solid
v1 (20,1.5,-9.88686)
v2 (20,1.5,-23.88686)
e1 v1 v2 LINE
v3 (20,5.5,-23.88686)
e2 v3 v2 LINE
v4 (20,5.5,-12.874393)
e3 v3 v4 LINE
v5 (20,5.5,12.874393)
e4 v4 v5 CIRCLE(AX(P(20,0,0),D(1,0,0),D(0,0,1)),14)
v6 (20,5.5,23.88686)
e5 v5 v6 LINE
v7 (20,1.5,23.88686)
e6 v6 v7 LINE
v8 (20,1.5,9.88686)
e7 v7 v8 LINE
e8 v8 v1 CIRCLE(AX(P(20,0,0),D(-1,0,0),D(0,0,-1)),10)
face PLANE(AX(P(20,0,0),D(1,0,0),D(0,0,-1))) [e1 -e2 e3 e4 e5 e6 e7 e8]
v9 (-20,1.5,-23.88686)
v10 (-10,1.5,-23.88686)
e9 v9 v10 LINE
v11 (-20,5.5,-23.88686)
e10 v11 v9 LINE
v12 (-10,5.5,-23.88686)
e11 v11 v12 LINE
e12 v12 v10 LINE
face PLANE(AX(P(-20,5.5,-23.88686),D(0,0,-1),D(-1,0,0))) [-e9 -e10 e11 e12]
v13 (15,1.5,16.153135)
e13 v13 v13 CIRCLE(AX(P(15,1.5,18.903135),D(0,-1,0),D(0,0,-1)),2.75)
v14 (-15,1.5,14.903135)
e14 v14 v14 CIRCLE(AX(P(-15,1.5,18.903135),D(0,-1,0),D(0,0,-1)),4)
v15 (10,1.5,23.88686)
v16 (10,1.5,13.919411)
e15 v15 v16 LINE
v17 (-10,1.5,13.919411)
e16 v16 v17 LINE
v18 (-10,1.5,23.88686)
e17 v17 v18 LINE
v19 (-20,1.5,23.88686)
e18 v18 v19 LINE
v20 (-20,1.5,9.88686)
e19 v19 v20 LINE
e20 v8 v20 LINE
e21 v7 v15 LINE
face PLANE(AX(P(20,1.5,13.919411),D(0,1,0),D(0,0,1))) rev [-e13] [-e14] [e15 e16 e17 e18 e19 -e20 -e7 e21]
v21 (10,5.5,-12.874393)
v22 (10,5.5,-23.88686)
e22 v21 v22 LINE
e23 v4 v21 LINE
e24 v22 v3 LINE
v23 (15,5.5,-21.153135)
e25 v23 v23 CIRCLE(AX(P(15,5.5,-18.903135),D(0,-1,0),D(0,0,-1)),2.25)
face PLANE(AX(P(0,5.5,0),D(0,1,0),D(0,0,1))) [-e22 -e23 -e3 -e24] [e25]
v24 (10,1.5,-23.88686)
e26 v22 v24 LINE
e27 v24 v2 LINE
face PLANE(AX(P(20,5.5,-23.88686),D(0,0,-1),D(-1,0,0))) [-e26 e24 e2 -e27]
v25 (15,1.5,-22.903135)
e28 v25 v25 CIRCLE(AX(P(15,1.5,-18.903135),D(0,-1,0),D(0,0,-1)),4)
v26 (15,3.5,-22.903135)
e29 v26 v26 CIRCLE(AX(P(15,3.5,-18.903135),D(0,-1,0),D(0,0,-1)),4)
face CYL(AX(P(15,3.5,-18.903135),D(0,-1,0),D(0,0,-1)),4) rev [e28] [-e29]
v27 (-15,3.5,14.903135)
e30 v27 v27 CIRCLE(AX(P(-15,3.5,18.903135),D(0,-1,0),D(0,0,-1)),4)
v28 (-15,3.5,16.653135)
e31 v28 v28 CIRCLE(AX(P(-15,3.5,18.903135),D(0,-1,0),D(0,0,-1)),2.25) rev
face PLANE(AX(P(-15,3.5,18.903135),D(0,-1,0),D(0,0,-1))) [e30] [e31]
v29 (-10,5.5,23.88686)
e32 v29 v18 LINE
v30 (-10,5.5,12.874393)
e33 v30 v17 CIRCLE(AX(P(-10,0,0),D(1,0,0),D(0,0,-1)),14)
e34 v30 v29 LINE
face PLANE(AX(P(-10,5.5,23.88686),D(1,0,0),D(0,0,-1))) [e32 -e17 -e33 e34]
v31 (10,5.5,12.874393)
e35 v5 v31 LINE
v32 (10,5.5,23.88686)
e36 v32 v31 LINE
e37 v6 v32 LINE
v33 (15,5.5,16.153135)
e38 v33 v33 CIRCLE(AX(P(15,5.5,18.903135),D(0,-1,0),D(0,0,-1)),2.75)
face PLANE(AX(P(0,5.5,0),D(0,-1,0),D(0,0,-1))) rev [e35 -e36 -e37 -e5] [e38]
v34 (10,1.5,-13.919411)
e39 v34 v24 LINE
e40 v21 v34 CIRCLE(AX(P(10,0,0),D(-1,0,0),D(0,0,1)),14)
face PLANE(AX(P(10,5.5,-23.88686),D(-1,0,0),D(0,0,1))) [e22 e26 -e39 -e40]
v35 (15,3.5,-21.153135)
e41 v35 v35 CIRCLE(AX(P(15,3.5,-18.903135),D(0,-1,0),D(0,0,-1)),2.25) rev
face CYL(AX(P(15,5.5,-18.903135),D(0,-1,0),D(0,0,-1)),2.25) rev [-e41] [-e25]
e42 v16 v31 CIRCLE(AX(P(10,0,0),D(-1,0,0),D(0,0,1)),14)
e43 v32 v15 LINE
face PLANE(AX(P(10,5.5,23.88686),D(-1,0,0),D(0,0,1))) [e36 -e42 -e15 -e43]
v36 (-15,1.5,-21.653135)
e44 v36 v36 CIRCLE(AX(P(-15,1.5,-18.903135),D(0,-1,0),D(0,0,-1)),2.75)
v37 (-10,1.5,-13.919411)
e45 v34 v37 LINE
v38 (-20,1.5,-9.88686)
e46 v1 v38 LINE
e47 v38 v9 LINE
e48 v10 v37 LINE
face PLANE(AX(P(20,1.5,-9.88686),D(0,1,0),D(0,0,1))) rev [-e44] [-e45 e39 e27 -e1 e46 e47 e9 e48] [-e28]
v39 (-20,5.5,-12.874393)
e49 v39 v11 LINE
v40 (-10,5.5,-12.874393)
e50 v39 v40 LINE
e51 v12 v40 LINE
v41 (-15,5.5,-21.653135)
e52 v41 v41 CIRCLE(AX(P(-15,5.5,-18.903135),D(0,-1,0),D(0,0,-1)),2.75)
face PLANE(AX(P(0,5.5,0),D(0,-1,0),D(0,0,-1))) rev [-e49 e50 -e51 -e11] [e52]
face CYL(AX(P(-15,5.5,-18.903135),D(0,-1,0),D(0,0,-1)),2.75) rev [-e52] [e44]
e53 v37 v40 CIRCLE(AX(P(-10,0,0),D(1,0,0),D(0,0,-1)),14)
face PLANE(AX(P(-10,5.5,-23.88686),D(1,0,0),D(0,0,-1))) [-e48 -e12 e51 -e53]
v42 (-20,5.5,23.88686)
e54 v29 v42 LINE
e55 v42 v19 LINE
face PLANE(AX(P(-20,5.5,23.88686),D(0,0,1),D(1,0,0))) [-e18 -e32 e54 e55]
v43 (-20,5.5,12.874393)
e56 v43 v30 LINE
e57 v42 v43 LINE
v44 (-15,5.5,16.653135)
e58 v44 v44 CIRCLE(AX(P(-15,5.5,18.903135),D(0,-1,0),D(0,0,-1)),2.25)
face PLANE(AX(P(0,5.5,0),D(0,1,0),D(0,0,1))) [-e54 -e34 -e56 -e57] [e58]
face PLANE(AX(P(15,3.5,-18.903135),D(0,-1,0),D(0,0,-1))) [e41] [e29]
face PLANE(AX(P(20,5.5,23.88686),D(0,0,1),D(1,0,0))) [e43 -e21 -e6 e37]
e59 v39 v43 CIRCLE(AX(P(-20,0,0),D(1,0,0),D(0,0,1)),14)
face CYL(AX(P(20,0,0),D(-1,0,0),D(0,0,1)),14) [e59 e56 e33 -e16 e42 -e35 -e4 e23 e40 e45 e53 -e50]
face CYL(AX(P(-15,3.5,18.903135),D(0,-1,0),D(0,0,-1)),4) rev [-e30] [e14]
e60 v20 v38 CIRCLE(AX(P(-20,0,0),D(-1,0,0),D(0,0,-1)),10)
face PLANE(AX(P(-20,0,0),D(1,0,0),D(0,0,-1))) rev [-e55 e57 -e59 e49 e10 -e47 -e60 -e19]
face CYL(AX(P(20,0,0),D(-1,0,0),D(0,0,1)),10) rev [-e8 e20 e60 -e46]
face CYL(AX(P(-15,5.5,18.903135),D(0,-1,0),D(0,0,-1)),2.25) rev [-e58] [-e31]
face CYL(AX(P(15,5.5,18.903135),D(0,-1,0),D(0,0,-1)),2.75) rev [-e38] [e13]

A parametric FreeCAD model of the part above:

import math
import FreeCAD as App
import Part
import Sketcher
from FreeCAD import Vector
Q = App.Units.Quantity


def add_polygon(sketch, points):
    """Adds a closed chain of lines whose ends are joined by coincident constraints."""
    first, n = sketch.GeometryCount, len(points)
    for a, b in zip(points, points[1:] + points[:1]):
        sketch.addGeometry(Part.LineSegment(App.Vector(*a, 0), App.Vector(*b, 0)), False)
    for i in range(n):
        sketch.addConstraint(Sketcher.Constraint("Coincident", first + i, 2, first + (i + 1) % n, 1))

doc = App.newDocument("Part")
body = doc.addObject("PartDesign::Body", "Body")

sketch1 = body.newObject("Sketcher::SketchObject", "Sketch")
sketch1.AttachmentSupport = (doc.getObject("YZ_Plane"), [""])
sketch1.MapMode = "FlatFace"
sketch1.addGeometry([
    Part.LineSegment(Vector(1.5, 13.919411, 0), Vector(1.5, 9.88686, 0)),
    Part.ArcOfCircle(Part.Circle(Vector(0, 0, 0), Vector(0, 0, 1), 10), math.radians(-81.373073), math.radians(81.373073)),
    Part.LineSegment(Vector(1.5, -9.88686, 0), Vector(1.5, -13.919411, 0)),
    Part.ArcOfCircle(Part.Circle(Vector(0, 0, 0), Vector(0, 0, 1), 14), math.radians(-83.84936), math.radians(83.84936)),
], False)
sketch1.addConstraint([
    Sketcher.Constraint("Coincident", 0, 2, 1, 2),
    Sketcher.Constraint("Coincident", 1, 1, 2, 1),
    Sketcher.Constraint("Coincident", 2, 2, 3, 1),
    Sketcher.Constraint("Coincident", 3, 2, 0, 1),
    Sketcher.Constraint("Vertical", 0),
    Sketcher.Constraint("Vertical", 2),
    Sketcher.Constraint("Coincident", 1, 3, -1, 1),
    Sketcher.Constraint("Coincident", 3, 3, -1, 1),
    Sketcher.Constraint("Vertical", 0, 2, 1, 1),
    Sketcher.Constraint("Radius", 1, Q("10 mm")),
    Sketcher.Constraint("Radius", 3, Q("14 mm")),
    Sketcher.Constraint("DistanceX", -1, 1, 0, 2, Q("1.5 mm")),
])
pad1 = body.newObject("PartDesign::Pad", "Pad")
pad1.Profile = sketch1
pad1.Length = 40
pad1.Midplane = True

sketch2 = body.newObject("Sketcher::SketchObject", "Sketch001")
sketch2.AttachmentSupport = (doc.getObject("XZ_Plane"), [""])
sketch2.MapMode = "FlatFace"
sketch2.AttachmentOffset = App.Placement(Vector(0, 0, -1.5), App.Rotation())
add_polygon(sketch2, [(-20, -9.88686), (-20, -23.88686), (-10, -23.88686), (-10, -9.88686)])
sketch2.addGeometry(Part.Circle(Vector(-15, -18.903135, 0), Vector(0, 0, 1), 2.75), False)
add_polygon(sketch2, [(10, -9.88686), (10, -23.88686), (20, -23.88686), (20, -9.88686)])
sketch2.addGeometry(Part.Circle(Vector(15, -18.903135, 0), Vector(0, 0, 1), 2.25), False)
add_polygon(sketch2, [(-20, 23.88686), (-20, 9.88686), (-10, 9.88686), (-10, 23.88686)])
sketch2.addGeometry(Part.Circle(Vector(-15, 18.903135, 0), Vector(0, 0, 1), 2.25), False)
add_polygon(sketch2, [(10, 23.88686), (10, 9.88686), (20, 9.88686), (20, 23.88686)])
sketch2.addGeometry(Part.Circle(Vector(15, 18.903135, 0), Vector(0, 0, 1), 2.75), False)
sketch2.addConstraint([
    Sketcher.Constraint("Vertical", 0),
    Sketcher.Constraint("Horizontal", 1),
    Sketcher.Constraint("Vertical", 2),
    Sketcher.Constraint("Horizontal", 3),
    Sketcher.Constraint("Vertical", 5),
    Sketcher.Constraint("Horizontal", 6),
    Sketcher.Constraint("Vertical", 7),
    Sketcher.Constraint("Horizontal", 8),
    Sketcher.Constraint("Vertical", 10),
    Sketcher.Constraint("Horizontal", 11),
    Sketcher.Constraint("Vertical", 12),
    Sketcher.Constraint("Horizontal", 13),
    Sketcher.Constraint("Vertical", 15),
    Sketcher.Constraint("Horizontal", 16),
    Sketcher.Constraint("Vertical", 17),
    Sketcher.Constraint("Horizontal", 18),
    Sketcher.Constraint("Equal", 9, 14),
    Sketcher.Constraint("Equal", 4, 19),
    Sketcher.Constraint("Symmetric", 9, 3, 14, 3, -1, 1),
    Sketcher.Constraint("Symmetric", 4, 3, 19, 3, -1, 1),
    Sketcher.Constraint("Symmetric", 7, 2, 10, 2, -1, 1),
    Sketcher.Constraint("Symmetric", 5, 2, 12, 2, -1, 1),
    Sketcher.Constraint("Symmetric", 2, 2, 15, 2, -1, 1),
    Sketcher.Constraint("Symmetric", 0, 2, 17, 2, -1, 1),
    Sketcher.Constraint("Symmetric", 4, 3, 9, 3, -2),
    Sketcher.Constraint("Symmetric", 1, 2, 5, 2, -2),
    Sketcher.Constraint("Symmetric", 3, 2, 7, 2, -2),
    Sketcher.Constraint("Diameter", 4, Q("5.5 mm")),
    Sketcher.Constraint("Diameter", 9, Q("4.5 mm")),
    Sketcher.Constraint("DistanceX", 1, 1, 1, 2, Q("10 mm")),
    Sketcher.Constraint("DistanceY", 0, 2, 0, 1, Q("14 mm")),
    Sketcher.Constraint("DistanceX", 4, 3, -1, 1, Q("15 mm")),
    Sketcher.Constraint("DistanceX", 0, 2, -1, 1, Q("20 mm")),
    Sketcher.Constraint("DistanceY", 0, 2, -1, 1, Q("23.88686 mm")),
    Sketcher.Constraint("DistanceY", 4, 3, 14, 3, Q("37.806271 mm")),
])
pad2 = body.newObject("PartDesign::Pad", "Pad001")
pad2.Profile = sketch2
pad2.Length = 4
pad2.Reversed = True

sketch3 = body.newObject("Sketcher::SketchObject", "Sketch002")
sketch3.AttachmentSupport = (doc.getObject("XZ_Plane"), [""])
sketch3.MapMode = "FlatFace"
sketch3.AttachmentOffset = App.Placement(Vector(0, 0, -1.5), App.Rotation())
sketch3.addGeometry([
    Part.Circle(Vector(-15, 18.903135, 0), Vector(0, 0, 1), 4),
    Part.Circle(Vector(15, -18.903135, 0), Vector(0, 0, 1), 4),
], False)
sketch3.addConstraint([
    Sketcher.Constraint("Equal", 0, 1),
    Sketcher.Constraint("Symmetric", 0, 3, 1, 3, -1, 1),
    Sketcher.Constraint("Diameter", 0, Q("8 mm")),
    Sketcher.Constraint("DistanceX", 0, 3, -1, 1, Q("15 mm")),
    Sketcher.Constraint("DistanceY", 1, 3, 0, 3, Q("37.806271 mm")),
])
pocket1 = body.newObject("PartDesign::Pocket", "Pocket")
pocket1.Profile = sketch3
pocket1.Length = 2

doc.recompute()
